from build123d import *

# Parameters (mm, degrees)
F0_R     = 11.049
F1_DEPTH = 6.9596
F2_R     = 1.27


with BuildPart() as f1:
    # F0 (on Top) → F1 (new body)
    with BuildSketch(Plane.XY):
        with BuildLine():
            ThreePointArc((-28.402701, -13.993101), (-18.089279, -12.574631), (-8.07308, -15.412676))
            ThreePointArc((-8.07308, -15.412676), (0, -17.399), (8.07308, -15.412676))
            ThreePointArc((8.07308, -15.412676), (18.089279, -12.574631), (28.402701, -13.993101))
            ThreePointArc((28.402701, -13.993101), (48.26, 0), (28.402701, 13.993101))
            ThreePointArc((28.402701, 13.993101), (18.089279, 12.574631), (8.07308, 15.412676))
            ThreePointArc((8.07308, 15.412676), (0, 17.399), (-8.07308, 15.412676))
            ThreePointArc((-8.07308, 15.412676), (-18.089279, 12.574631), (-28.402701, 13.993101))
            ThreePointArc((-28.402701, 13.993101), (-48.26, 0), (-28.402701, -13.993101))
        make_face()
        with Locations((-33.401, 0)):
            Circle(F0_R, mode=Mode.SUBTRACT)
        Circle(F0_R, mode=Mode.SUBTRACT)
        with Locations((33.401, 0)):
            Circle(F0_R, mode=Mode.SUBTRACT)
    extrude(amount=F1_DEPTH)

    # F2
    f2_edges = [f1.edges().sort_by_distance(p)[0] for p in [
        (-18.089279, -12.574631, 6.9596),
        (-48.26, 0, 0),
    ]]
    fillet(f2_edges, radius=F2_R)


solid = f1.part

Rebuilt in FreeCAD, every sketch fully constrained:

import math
import FreeCAD as App
import Part
import Sketcher

V = App.Vector
Q = App.Units.Quantity


def edges_at(feature, points):
    """Names of the edges that pass closest to the given points."""
    edges = feature.Shape.Edges
    near = lambda p: min(range(len(edges)), key=lambda i: edges[i].distToShape(Part.Vertex(*p))[0])
    return sorted({f"Edge{near(p) + 1}" for p in points})

doc = App.newDocument("Part")
body = doc.addObject("PartDesign::Body", "Body")

sketch1 = doc.addObject("Sketcher::SketchObject", "Sketch")
body.addObject(sketch1)
sketch1.AttachmentSupport = (doc.XY_Plane, [""])
sketch1.MapMode = "FlatFace"
sketch1.addGeometry(Part.ArcOfCircle(Part.Circle(V(-19.858599, -37.912931, 0), V(0, 0, 1), 25.399999), math.radians(62.354681), math.radians(109.656597)), False)
sketch1.addGeometry(Part.ArcOfCircle(Part.Circle(V(0, 0, 0), V(0, 0, 1), 17.399), math.radians(-117.645314), math.radians(-62.354686)), False)
sketch1.addGeometry(Part.ArcOfCircle(Part.Circle(V(19.858599, -37.912931, 0), V(0, 0, 1), 25.399999), math.radians(70.343403), math.radians(117.645319)), False)
sketch1.addGeometry(Part.ArcOfCircle(Part.Circle(V(33.401, 0, 0), V(0, 0, 1), 14.859), math.radians(-109.656596), math.radians(109.656596)), False)
sketch1.addGeometry(Part.ArcOfCircle(Part.Circle(V(19.858599, 37.912931, 0), V(0, 0, 1), 25.399999), math.radians(-117.645319), math.radians(-70.343403)), False)
sketch1.addGeometry(Part.ArcOfCircle(Part.Circle(V(0, 0, 0), V(0, 0, 1), 17.399), math.radians(62.354686), math.radians(117.645314)), False)
sketch1.addGeometry(Part.ArcOfCircle(Part.Circle(V(-19.858599, 37.912931, 0), V(0, 0, 1), 25.399999), math.radians(-109.656597), math.radians(-62.354681)), False)
sketch1.addGeometry(Part.ArcOfCircle(Part.Circle(V(-33.401, 0, 0), V(0, 0, 1), 14.859), math.radians(70.343404), math.radians(289.656596)), False)
sketch1.addGeometry(Part.Circle(V(-33.401, 0, 0), V(0, 0, 1), 11.049), False)
sketch1.addGeometry(Part.Circle(V(0, 0, 0), V(0, 0, 1), 11.049), False)
sketch1.addGeometry(Part.Circle(V(33.401, 0, 0), V(0, 0, 1), 11.049), False)
sketch1.addConstraint(Sketcher.Constraint("Tangent", 0, 1, 1, 1))
sketch1.addConstraint(Sketcher.Constraint("Tangent", 1, 2, 2, 2))
sketch1.addConstraint(Sketcher.Constraint("Tangent", 2, 1, 3, 1))
sketch1.addConstraint(Sketcher.Constraint("Tangent", 3, 2, 4, 2))
sketch1.addConstraint(Sketcher.Constraint("Tangent", 4, 1, 5, 1))
sketch1.addConstraint(Sketcher.Constraint("Tangent", 5, 2, 6, 2))
sketch1.addConstraint(Sketcher.Constraint("Tangent", 6, 1, 7, 1))
sketch1.addConstraint(Sketcher.Constraint("Tangent", 7, 2, 0, 2))
sketch1.addConstraint(Sketcher.Constraint("Coincident", 1, 3, -1, 1))
sketch1.addConstraint(Sketcher.Constraint("Coincident", 5, 3, -1, 1))
sketch1.addConstraint(Sketcher.Constraint("Coincident", 9, 3, -1, 1))
sketch1.addConstraint(Sketcher.Constraint("Coincident", 8, 3, 7, 3))
sketch1.addConstraint(Sketcher.Constraint("Coincident", 10, 3, 3, 3))
sketch1.addConstraint(Sketcher.Constraint("Equal", 0, 2))
sketch1.addConstraint(Sketcher.Constraint("Equal", 2, 4))
sketch1.addConstraint(Sketcher.Constraint("Equal", 1, 5))
sketch1.addConstraint(Sketcher.Constraint("Equal", 4, 6))
sketch1.addConstraint(Sketcher.Constraint("Equal", 3, 7))
sketch1.addConstraint(Sketcher.Constraint("Equal", 8, 9))
sketch1.addConstraint(Sketcher.Constraint("Equal", 9, 10))
sketch1.addConstraint(Sketcher.Constraint("Symmetric", 3, 3, 7, 3, -1, 1))
sketch1.addConstraint(Sketcher.Constraint("PointOnObject", 3, 3, -1))
sketch1.addConstraint(Sketcher.Constraint("Radius", 0, Q("0.9999999 in")))
sketch1.addConstraint(Sketcher.Constraint("Diameter", 8, Q("0.87 in")))
sketch1.addConstraint(Sketcher.Constraint("Radius", 1, Q("0.685 in")))
sketch1.addConstraint(Sketcher.Constraint("Radius", 3, Q("0.585 in")))
sketch1.addConstraint(Sketcher.Constraint("DistanceX", -1, 1, 3, 3, Q("1.315 in")))
pad1 = doc.addObject("PartDesign::Pad", "Pad")
body.addObject(pad1)
pad1.Profile = sketch1
pad1.Length = Q("0.274 in")
doc.recompute()

fillet = doc.addObject("PartDesign::Fillet", "Fillet")
body.addObject(fillet)
fillet.Base = (pad1, edges_at(pad1, [(-18.089, -12.575, 6.96), (-48.26, 0, 0)]))
fillet.Radius = Q("0.05 in")

doc.recompute()
